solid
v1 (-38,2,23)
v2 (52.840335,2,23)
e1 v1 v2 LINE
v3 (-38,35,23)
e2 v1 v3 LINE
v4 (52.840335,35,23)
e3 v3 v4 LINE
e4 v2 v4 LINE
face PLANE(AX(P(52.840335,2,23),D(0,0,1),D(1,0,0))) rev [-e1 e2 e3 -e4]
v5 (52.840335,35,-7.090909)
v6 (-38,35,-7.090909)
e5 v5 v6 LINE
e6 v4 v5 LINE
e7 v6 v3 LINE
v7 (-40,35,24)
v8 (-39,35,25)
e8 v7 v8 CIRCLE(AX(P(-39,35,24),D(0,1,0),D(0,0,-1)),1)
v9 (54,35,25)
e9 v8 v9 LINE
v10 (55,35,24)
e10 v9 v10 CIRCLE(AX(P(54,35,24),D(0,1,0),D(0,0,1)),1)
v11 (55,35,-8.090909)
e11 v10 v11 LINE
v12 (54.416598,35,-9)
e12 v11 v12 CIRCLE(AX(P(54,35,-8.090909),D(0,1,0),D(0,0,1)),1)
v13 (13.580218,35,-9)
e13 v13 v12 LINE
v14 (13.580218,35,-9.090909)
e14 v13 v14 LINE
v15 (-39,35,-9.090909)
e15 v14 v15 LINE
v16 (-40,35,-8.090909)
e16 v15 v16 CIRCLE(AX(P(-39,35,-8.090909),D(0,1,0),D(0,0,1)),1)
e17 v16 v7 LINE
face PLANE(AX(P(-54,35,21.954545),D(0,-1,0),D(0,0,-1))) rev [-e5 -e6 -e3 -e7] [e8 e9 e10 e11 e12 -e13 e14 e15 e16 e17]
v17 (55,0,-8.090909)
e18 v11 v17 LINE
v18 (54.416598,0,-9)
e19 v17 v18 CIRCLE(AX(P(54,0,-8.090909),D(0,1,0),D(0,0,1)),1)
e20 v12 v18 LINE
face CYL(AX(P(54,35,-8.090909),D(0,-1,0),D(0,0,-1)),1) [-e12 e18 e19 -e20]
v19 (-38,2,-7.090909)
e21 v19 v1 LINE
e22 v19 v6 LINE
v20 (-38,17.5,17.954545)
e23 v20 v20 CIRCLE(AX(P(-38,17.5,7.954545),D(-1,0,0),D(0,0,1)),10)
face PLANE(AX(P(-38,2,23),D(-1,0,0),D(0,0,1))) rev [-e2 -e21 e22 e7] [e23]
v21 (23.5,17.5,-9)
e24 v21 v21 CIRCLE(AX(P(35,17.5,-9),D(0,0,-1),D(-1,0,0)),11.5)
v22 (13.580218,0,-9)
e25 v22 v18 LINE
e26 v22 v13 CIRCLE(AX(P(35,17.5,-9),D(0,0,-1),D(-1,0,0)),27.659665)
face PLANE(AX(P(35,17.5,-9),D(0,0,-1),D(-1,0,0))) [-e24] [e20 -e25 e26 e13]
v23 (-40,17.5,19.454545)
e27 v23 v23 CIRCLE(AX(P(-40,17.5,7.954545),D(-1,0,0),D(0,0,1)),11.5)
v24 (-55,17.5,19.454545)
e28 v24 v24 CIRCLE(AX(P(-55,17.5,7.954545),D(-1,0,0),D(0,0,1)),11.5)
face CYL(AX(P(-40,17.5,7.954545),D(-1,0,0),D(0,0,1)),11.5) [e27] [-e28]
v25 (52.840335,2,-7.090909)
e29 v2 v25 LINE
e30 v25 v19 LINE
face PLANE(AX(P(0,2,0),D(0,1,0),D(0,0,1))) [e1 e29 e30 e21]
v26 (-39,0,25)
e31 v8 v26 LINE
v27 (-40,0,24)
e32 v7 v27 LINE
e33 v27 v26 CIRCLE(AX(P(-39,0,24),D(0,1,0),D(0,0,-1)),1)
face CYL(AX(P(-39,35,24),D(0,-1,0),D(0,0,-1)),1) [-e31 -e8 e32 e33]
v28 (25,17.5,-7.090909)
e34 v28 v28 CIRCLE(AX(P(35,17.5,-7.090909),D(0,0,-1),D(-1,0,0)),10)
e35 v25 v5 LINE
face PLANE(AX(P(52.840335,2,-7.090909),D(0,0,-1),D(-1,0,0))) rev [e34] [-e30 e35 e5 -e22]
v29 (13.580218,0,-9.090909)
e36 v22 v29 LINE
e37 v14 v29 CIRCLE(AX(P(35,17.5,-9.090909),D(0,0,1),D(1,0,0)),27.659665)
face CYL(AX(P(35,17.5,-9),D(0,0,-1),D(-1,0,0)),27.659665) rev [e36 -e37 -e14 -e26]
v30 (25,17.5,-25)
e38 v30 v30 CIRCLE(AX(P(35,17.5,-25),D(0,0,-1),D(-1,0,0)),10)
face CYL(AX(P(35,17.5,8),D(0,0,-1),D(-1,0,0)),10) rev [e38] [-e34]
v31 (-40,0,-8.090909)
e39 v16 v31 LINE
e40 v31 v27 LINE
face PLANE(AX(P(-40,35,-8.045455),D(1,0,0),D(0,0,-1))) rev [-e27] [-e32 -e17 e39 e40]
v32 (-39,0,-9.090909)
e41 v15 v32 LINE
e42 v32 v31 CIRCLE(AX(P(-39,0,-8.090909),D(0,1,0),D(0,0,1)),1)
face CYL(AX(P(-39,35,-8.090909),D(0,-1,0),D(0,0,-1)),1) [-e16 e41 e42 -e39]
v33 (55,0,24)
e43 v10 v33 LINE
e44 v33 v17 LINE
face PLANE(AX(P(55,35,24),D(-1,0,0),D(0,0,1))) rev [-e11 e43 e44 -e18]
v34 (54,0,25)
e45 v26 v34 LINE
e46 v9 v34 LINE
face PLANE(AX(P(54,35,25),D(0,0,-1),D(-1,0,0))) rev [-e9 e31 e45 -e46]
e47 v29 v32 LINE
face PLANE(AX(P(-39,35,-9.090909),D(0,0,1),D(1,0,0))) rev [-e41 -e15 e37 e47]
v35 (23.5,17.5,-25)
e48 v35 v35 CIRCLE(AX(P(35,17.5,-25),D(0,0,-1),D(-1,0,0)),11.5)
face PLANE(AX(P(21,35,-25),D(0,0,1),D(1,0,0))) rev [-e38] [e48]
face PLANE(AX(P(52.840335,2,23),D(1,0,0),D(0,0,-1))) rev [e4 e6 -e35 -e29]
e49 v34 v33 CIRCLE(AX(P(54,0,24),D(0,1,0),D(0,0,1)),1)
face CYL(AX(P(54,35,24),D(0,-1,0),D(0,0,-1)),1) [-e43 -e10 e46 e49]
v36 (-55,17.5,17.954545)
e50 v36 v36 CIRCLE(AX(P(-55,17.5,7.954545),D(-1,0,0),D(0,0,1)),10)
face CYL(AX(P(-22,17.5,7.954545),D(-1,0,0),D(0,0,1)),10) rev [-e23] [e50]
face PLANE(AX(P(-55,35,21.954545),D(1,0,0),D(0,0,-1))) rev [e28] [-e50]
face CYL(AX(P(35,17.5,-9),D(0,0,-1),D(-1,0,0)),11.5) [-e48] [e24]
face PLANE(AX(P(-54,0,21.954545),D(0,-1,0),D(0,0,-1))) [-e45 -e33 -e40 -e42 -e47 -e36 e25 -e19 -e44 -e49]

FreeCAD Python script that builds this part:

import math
import FreeCAD as App
import Part
import Sketcher

V = App.Vector
Q = App.Units.Quantity

doc = App.newDocument("Part")
body = doc.addObject("PartDesign::Body", "Body")

# Sketch on XZ plane
sketch1 = body.newObject("Sketcher::SketchObject", "Sketch")
sketch1.AttachmentSupport = (doc.getObject("XZ_Plane"), [""])
sketch1.MapMode = "FlatFace"
sketch1.addGeometry([
    Part.LineSegment(V(-39, 25, 0), V(54, 25, 0)),  # 0
    Part.ArcOfCircle(Part.Circle(V(54, 24, 0), V(0, 0, 1), 1), math.radians(0), math.radians(90)),  # 1
    Part.LineSegment(V(55, 24, 0), V(55, -8.090909, 0)),  # 2
    Part.ArcOfCircle(Part.Circle(V(54, -8.090909, 0), V(0, 0, 1), 1), math.radians(-90), math.radians(0)),  # 3
    Part.LineSegment(V(54, -9.090909, 0), V(51, -9.090909, 0)),  # 4
    Part.ArcOfCircle(Part.Circle(V(51, -10.090909, 0), V(0, 0, 1), 1), math.radians(90), math.radians(180)),  # 5
    Part.LineSegment(V(50, -10.090909, 0), V(50, -24, 0)),  # 6
    Part.ArcOfCircle(Part.Circle(V(49, -24, 0), V(0, 0, 1), 1), math.radians(-90), math.radians(0)),  # 7
    Part.LineSegment(V(49, -25, 0), V(21, -25, 0)),  # 8
    Part.ArcOfCircle(Part.Circle(V(21, -24, 0), V(0, 0, 1), 1), math.radians(-180), math.radians(-90)),  # 9
    Part.LineSegment(V(20, -24, 0), V(20, -10.090909, 0)),  # 10
    Part.ArcOfCircle(Part.Circle(V(19, -10.090909, 0), V(0, 0, 1), 1), math.radians(0), math.radians(90)),  # 11
    Part.LineSegment(V(19, -9.090909, 0), V(-39, -9.090909, 0)),  # 12
    Part.ArcOfCircle(Part.Circle(V(-39, -8.090909, 0), V(0, 0, 1), 1), math.radians(-180), math.radians(-90)),  # 13
    Part.LineSegment(V(-40, -8.090909, 0), V(-40, -8.045455, 0)),  # 14
    Part.ArcOfCircle(Part.Circle(V(-41, -8.045455, 0), V(0, 0, 1), 1), math.radians(0), math.radians(90)),  # 15
    Part.LineSegment(V(-41, -7.045455, 0), V(-54, -7.045455, 0)),  # 16
    Part.ArcOfCircle(Part.Circle(V(-54, -6.045455, 0), V(0, 0, 1), 1), math.radians(180), math.radians(270)),  # 17
    Part.LineSegment(V(-55, -6.045455, 0), V(-55, 21.954545, 0)),  # 18
    Part.ArcOfCircle(Part.Circle(V(-54, 21.954545, 0), V(0, 0, 1), 1), math.radians(90), math.radians(180)),  # 19
    Part.LineSegment(V(-54, 22.954545, 0), V(-41, 22.954545, 0)),  # 20
    Part.ArcOfCircle(Part.Circle(V(-41, 23.954545, 0), V(0, 0, 1), 1), math.radians(-90), math.radians(0)),  # 21
    Part.LineSegment(V(-40, 23.954545, 0), V(-40, 24, 0)),  # 22
    Part.ArcOfCircle(Part.Circle(V(-39, 24, 0), V(0, 0, 1), 1), math.radians(90), math.radians(180)),  # 23
], False)
sketch1.addConstraint([
    Sketcher.Constraint("Tangent", 0, 2, 1, 2),
    Sketcher.Constraint("Tangent", 1, 1, 2, 1),
    Sketcher.Constraint("Tangent", 2, 2, 3, 2),
    Sketcher.Constraint("Tangent", 3, 1, 4, 1),
    Sketcher.Constraint("Tangent", 4, 2, 5, 1),
    Sketcher.Constraint("Tangent", 5, 2, 6, 1),
    Sketcher.Constraint("Tangent", 6, 2, 7, 2),
    Sketcher.Constraint("Tangent", 7, 1, 8, 1),
    Sketcher.Constraint("Tangent", 8, 2, 9, 2),
    Sketcher.Constraint("Tangent", 9, 1, 10, 1),
    Sketcher.Constraint("Tangent", 10, 2, 11, 1),
    Sketcher.Constraint("Tangent", 11, 2, 12, 1),
    Sketcher.Constraint("Tangent", 12, 2, 13, 2),
    Sketcher.Constraint("Tangent", 13, 1, 14, 1),
    Sketcher.Constraint("Tangent", 14, 2, 15, 1),
    Sketcher.Constraint("Tangent", 15, 2, 16, 1),
    Sketcher.Constraint("Tangent", 16, 2, 17, 2),
    Sketcher.Constraint("Tangent", 17, 1, 18, 1),
    Sketcher.Constraint("Tangent", 18, 2, 19, 2),
    Sketcher.Constraint("Tangent", 19, 1, 20, 1),
    Sketcher.Constraint("Tangent", 20, 2, 21, 1),
    Sketcher.Constraint("Tangent", 21, 2, 22, 1),
    Sketcher.Constraint("Tangent", 22, 2, 23, 2),
    Sketcher.Constraint("Tangent", 23, 1, 0, 1),
    Sketcher.Constraint("Horizontal", 0),
    Sketcher.Constraint("Vertical", 2),
    Sketcher.Constraint("Horizontal", 4),
    Sketcher.Constraint("Vertical", 6),
    Sketcher.Constraint("Horizontal", 8),
    Sketcher.Constraint("Vertical", 10),
    Sketcher.Constraint("Horizontal", 12),
    Sketcher.Constraint("Vertical", 14),
    Sketcher.Constraint("Horizontal", 16),
    Sketcher.Constraint("Vertical", 18),
    Sketcher.Constraint("Horizontal", 20),
    Sketcher.Constraint("Vertical", 22),
    Sketcher.Constraint("Equal", 1, 3),
    Sketcher.Constraint("Equal", 3, 5),
    Sketcher.Constraint("Equal", 5, 7),
    Sketcher.Constraint("Equal", 7, 9),
    Sketcher.Constraint("Equal", 9, 11),
    Sketcher.Constraint("Equal", 11, 13),
    Sketcher.Constraint("Equal", 13, 15),
    Sketcher.Constraint("Equal", 15, 17),
    Sketcher.Constraint("Equal", 17, 19),
    Sketcher.Constraint("Equal", 19, 21),
    Sketcher.Constraint("Equal", 21, 23),
    Sketcher.Constraint("Horizontal", 5, 3, 11, 3),
    Sketcher.Constraint("Vertical", 15, 3, 21, 3),
    Sketcher.Constraint("Equal", 8, 18),
    Sketcher.Constraint("Equal", 14, 22),
    Sketcher.Constraint("Radius", 1, Q("1 mm")),
    Sketcher.Constraint("DistanceX", 0, 1, 0, 2, Q("93 mm")),
    Sketcher.Constraint("DistanceX", 4, 2, 4, 1, Q("3 mm")),
    Sketcher.Constraint("DistanceX", 8, 2, 8, 1, Q("28 mm")),
    Sketcher.Constraint("DistanceX", 16, 2, 16, 1, Q("13 mm")),
    Sketcher.Constraint("DistanceX", -1, 1, 1, 3, Q("54 mm")),
    Sketcher.Constraint("DistanceY", -1, 1, 1, 3, Q("24 mm")),
    Sketcher.Constraint("DistanceY", 7, 3, -1, 1, Q("24 mm")),
    Sketcher.Constraint("DistanceY", 2, 2, 2, 1, Q("32.090909 mm")),
])
pad1 = body.newObject("PartDesign::Pad", "Pad")
pad1.Profile = sketch1
pad1.Length = 35
pad1.Reversed = True

# Sketch on YZ plane
sketch2 = body.newObject("Sketcher::SketchObject", "Sketch001")
sketch2.AttachmentSupport = (doc.getObject("YZ_Plane"), [""])
sketch2.MapMode = "FlatFace"
sketch2.AttachmentOffset = App.Placement(V(0, 0, -55), App.Rotation())
sketch2.addGeometry([
    Part.Circle(V(17.5, 7.954545, 0), V(0, 0, 1), 23.966279),
    Part.Circle(V(17.5, 7.954545, 0), V(0, 0, 1), 11.5),
], False)
sketch2.addConstraint([
    Sketcher.Constraint("Coincident", 1, 3, 0, 3),
    Sketcher.Constraint("Diameter", 1, Q("23 mm")),
    Sketcher.Constraint("DistanceX", -1, 1, 0, 3, Q("17.5 mm")),
    Sketcher.Constraint("Diameter", 0, Q("47.932558 mm")),
    Sketcher.Constraint("DistanceY", -1, 1, 0, 3, Q("7.954545 mm")),
])
pocket1 = body.newObject("PartDesign::Pocket", "Pocket")
pocket1.Profile = sketch2
pocket1.Length = 15
pocket1.Reversed = True

# Sketch on XY plane
sketch3 = body.newObject("Sketcher::SketchObject", "Sketch002")
sketch3.AttachmentSupport = (doc.getObject("XY_Plane"), [""])
sketch3.MapMode = "FlatFace"
sketch3.AttachmentOffset = App.Placement(V(0, 0, -25), App.Rotation())
sketch3.addGeometry([
    Part.Circle(V(35, 17.5, 0), V(0, 0, 1), 27.659665),
    Part.Circle(V(35, 17.5, 0), V(0, 0, 1), 11.5),
], False)
sketch3.addConstraint([
    Sketcher.Constraint("Coincident", 1, 3, 0, 3),
    Sketcher.Constraint("Diameter", 1, Q("23 mm")),
    Sketcher.Constraint("DistanceX", -1, 1, 0, 3, Q("35 mm")),
    Sketcher.Constraint("DistanceY", -1, 1, 0, 3, Q("17.5 mm")),
    Sketcher.Constraint("Diameter", 0, Q("55.319329 mm")),
])
pocket2 = body.newObject("PartDesign::Pocket", "Pocket001")
pocket2.Profile = sketch3
pocket2.Length = 16
pocket2.Reversed = True

# Sketch on XZ plane
sketch4 = body.newObject("Sketcher::SketchObject", "Sketch003")
sketch4.AttachmentSupport = (doc.getObject("XZ_Plane"), [""])
sketch4.MapMode = "FlatFace"
sketch4.AttachmentOffset = App.Placement(V(0, 0, -35), App.Rotation())
sketch4.addGeometry([
    Part.LineSegment(V(-38, -7.090909, 0), V(-38, 23, 0)),
    Part.LineSegment(V(-38, 23, 0), V(52.840335, 23, 0)),
    Part.LineSegment(V(52.840335, 23, 0), V(52.840335, -7.090909, 0)),
    Part.LineSegment(V(52.840335, -7.090909, 0), V(-38, -7.090909, 0)),
], False)
sketch4.addConstraint([
    Sketcher.Constraint("Coincident", 0, 2, 1, 1),
    Sketcher.Constraint("Coincident", 1, 2, 2, 1),
    Sketcher.Constraint("Coincident", 2, 2, 3, 1),
    Sketcher.Constraint("Coincident", 3, 2, 0, 1),
    Sketcher.Constraint("Vertical", 0),
    Sketcher.Constraint("Horizontal", 1),
    Sketcher.Constraint("Vertical", 2),
    Sketcher.Constraint("Horizontal", 3),
    Sketcher.Constraint("DistanceX", 0, 2, -1, 1, Q("38 mm")),
    Sketcher.Constraint("DistanceY", -1, 1, 0, 2, Q("23 mm")),
    Sketcher.Constraint("DistanceY", 0, 1, 0, 2, Q("30.090909 mm")),
    Sketcher.Constraint("DistanceX", 1, 1, 1, 2, Q("90.840335 mm")),
])
pocket3 = body.newObject("PartDesign::Pocket", "Pocket002")
pocket3.Profile = sketch4
pocket3.Length = 33
pocket3.Reversed = True

# Sketch on YZ plane
sketch5 = body.newObject("Sketcher::SketchObject", "Sketch004")
sketch5.AttachmentSupport = (doc.getObject("YZ_Plane"), [""])
sketch5.MapMode = "FlatFace"
sketch5.AttachmentOffset = App.Placement(V(0, 0, -55), App.Rotation())
sketch5.addGeometry(Part.Circle(V(17.5, 7.954545, 0), V(0, 0, 1), 10), False)
sketch5.addConstraint([
    Sketcher.Constraint("Diameter", 0, Q("20 mm")),
    Sketcher.Constraint("DistanceX", -1, 1, 0, 3, Q("17.5 mm")),
    Sketcher.Constraint("DistanceY", -1, 1, 0, 3, Q("7.954545 mm")),
])
pocket4 = body.newObject("PartDesign::Pocket", "Pocket003")
pocket4.Profile = sketch5
pocket4.Length = 33
pocket4.Reversed = True

# Sketch on XY plane
sketch6 = body.newObject("Sketcher::SketchObject", "Sketch005")
sketch6.AttachmentSupport = (doc.getObject("XY_Plane"), [""])
sketch6.MapMode = "FlatFace"
sketch6.AttachmentOffset = App.Placement(V(0, 0, -25), App.Rotation())
sketch6.addGeometry(Part.Circle(V(35, 17.5, 0), V(0, 0, 1), 10), False)
sketch6.addConstraint([
    Sketcher.Constraint("Diameter", 0, Q("20 mm")),
    Sketcher.Constraint("DistanceX", -1, 1, 0, 3, Q("35 mm")),
    Sketcher.Constraint("DistanceY", -1, 1, 0, 3, Q("17.5 mm")),
])
pocket5 = body.newObject("PartDesign::Pocket", "Pocket004")
pocket5.Profile = sketch6
pocket5.Length = 33
pocket5.Reversed = True

doc.recompute()
